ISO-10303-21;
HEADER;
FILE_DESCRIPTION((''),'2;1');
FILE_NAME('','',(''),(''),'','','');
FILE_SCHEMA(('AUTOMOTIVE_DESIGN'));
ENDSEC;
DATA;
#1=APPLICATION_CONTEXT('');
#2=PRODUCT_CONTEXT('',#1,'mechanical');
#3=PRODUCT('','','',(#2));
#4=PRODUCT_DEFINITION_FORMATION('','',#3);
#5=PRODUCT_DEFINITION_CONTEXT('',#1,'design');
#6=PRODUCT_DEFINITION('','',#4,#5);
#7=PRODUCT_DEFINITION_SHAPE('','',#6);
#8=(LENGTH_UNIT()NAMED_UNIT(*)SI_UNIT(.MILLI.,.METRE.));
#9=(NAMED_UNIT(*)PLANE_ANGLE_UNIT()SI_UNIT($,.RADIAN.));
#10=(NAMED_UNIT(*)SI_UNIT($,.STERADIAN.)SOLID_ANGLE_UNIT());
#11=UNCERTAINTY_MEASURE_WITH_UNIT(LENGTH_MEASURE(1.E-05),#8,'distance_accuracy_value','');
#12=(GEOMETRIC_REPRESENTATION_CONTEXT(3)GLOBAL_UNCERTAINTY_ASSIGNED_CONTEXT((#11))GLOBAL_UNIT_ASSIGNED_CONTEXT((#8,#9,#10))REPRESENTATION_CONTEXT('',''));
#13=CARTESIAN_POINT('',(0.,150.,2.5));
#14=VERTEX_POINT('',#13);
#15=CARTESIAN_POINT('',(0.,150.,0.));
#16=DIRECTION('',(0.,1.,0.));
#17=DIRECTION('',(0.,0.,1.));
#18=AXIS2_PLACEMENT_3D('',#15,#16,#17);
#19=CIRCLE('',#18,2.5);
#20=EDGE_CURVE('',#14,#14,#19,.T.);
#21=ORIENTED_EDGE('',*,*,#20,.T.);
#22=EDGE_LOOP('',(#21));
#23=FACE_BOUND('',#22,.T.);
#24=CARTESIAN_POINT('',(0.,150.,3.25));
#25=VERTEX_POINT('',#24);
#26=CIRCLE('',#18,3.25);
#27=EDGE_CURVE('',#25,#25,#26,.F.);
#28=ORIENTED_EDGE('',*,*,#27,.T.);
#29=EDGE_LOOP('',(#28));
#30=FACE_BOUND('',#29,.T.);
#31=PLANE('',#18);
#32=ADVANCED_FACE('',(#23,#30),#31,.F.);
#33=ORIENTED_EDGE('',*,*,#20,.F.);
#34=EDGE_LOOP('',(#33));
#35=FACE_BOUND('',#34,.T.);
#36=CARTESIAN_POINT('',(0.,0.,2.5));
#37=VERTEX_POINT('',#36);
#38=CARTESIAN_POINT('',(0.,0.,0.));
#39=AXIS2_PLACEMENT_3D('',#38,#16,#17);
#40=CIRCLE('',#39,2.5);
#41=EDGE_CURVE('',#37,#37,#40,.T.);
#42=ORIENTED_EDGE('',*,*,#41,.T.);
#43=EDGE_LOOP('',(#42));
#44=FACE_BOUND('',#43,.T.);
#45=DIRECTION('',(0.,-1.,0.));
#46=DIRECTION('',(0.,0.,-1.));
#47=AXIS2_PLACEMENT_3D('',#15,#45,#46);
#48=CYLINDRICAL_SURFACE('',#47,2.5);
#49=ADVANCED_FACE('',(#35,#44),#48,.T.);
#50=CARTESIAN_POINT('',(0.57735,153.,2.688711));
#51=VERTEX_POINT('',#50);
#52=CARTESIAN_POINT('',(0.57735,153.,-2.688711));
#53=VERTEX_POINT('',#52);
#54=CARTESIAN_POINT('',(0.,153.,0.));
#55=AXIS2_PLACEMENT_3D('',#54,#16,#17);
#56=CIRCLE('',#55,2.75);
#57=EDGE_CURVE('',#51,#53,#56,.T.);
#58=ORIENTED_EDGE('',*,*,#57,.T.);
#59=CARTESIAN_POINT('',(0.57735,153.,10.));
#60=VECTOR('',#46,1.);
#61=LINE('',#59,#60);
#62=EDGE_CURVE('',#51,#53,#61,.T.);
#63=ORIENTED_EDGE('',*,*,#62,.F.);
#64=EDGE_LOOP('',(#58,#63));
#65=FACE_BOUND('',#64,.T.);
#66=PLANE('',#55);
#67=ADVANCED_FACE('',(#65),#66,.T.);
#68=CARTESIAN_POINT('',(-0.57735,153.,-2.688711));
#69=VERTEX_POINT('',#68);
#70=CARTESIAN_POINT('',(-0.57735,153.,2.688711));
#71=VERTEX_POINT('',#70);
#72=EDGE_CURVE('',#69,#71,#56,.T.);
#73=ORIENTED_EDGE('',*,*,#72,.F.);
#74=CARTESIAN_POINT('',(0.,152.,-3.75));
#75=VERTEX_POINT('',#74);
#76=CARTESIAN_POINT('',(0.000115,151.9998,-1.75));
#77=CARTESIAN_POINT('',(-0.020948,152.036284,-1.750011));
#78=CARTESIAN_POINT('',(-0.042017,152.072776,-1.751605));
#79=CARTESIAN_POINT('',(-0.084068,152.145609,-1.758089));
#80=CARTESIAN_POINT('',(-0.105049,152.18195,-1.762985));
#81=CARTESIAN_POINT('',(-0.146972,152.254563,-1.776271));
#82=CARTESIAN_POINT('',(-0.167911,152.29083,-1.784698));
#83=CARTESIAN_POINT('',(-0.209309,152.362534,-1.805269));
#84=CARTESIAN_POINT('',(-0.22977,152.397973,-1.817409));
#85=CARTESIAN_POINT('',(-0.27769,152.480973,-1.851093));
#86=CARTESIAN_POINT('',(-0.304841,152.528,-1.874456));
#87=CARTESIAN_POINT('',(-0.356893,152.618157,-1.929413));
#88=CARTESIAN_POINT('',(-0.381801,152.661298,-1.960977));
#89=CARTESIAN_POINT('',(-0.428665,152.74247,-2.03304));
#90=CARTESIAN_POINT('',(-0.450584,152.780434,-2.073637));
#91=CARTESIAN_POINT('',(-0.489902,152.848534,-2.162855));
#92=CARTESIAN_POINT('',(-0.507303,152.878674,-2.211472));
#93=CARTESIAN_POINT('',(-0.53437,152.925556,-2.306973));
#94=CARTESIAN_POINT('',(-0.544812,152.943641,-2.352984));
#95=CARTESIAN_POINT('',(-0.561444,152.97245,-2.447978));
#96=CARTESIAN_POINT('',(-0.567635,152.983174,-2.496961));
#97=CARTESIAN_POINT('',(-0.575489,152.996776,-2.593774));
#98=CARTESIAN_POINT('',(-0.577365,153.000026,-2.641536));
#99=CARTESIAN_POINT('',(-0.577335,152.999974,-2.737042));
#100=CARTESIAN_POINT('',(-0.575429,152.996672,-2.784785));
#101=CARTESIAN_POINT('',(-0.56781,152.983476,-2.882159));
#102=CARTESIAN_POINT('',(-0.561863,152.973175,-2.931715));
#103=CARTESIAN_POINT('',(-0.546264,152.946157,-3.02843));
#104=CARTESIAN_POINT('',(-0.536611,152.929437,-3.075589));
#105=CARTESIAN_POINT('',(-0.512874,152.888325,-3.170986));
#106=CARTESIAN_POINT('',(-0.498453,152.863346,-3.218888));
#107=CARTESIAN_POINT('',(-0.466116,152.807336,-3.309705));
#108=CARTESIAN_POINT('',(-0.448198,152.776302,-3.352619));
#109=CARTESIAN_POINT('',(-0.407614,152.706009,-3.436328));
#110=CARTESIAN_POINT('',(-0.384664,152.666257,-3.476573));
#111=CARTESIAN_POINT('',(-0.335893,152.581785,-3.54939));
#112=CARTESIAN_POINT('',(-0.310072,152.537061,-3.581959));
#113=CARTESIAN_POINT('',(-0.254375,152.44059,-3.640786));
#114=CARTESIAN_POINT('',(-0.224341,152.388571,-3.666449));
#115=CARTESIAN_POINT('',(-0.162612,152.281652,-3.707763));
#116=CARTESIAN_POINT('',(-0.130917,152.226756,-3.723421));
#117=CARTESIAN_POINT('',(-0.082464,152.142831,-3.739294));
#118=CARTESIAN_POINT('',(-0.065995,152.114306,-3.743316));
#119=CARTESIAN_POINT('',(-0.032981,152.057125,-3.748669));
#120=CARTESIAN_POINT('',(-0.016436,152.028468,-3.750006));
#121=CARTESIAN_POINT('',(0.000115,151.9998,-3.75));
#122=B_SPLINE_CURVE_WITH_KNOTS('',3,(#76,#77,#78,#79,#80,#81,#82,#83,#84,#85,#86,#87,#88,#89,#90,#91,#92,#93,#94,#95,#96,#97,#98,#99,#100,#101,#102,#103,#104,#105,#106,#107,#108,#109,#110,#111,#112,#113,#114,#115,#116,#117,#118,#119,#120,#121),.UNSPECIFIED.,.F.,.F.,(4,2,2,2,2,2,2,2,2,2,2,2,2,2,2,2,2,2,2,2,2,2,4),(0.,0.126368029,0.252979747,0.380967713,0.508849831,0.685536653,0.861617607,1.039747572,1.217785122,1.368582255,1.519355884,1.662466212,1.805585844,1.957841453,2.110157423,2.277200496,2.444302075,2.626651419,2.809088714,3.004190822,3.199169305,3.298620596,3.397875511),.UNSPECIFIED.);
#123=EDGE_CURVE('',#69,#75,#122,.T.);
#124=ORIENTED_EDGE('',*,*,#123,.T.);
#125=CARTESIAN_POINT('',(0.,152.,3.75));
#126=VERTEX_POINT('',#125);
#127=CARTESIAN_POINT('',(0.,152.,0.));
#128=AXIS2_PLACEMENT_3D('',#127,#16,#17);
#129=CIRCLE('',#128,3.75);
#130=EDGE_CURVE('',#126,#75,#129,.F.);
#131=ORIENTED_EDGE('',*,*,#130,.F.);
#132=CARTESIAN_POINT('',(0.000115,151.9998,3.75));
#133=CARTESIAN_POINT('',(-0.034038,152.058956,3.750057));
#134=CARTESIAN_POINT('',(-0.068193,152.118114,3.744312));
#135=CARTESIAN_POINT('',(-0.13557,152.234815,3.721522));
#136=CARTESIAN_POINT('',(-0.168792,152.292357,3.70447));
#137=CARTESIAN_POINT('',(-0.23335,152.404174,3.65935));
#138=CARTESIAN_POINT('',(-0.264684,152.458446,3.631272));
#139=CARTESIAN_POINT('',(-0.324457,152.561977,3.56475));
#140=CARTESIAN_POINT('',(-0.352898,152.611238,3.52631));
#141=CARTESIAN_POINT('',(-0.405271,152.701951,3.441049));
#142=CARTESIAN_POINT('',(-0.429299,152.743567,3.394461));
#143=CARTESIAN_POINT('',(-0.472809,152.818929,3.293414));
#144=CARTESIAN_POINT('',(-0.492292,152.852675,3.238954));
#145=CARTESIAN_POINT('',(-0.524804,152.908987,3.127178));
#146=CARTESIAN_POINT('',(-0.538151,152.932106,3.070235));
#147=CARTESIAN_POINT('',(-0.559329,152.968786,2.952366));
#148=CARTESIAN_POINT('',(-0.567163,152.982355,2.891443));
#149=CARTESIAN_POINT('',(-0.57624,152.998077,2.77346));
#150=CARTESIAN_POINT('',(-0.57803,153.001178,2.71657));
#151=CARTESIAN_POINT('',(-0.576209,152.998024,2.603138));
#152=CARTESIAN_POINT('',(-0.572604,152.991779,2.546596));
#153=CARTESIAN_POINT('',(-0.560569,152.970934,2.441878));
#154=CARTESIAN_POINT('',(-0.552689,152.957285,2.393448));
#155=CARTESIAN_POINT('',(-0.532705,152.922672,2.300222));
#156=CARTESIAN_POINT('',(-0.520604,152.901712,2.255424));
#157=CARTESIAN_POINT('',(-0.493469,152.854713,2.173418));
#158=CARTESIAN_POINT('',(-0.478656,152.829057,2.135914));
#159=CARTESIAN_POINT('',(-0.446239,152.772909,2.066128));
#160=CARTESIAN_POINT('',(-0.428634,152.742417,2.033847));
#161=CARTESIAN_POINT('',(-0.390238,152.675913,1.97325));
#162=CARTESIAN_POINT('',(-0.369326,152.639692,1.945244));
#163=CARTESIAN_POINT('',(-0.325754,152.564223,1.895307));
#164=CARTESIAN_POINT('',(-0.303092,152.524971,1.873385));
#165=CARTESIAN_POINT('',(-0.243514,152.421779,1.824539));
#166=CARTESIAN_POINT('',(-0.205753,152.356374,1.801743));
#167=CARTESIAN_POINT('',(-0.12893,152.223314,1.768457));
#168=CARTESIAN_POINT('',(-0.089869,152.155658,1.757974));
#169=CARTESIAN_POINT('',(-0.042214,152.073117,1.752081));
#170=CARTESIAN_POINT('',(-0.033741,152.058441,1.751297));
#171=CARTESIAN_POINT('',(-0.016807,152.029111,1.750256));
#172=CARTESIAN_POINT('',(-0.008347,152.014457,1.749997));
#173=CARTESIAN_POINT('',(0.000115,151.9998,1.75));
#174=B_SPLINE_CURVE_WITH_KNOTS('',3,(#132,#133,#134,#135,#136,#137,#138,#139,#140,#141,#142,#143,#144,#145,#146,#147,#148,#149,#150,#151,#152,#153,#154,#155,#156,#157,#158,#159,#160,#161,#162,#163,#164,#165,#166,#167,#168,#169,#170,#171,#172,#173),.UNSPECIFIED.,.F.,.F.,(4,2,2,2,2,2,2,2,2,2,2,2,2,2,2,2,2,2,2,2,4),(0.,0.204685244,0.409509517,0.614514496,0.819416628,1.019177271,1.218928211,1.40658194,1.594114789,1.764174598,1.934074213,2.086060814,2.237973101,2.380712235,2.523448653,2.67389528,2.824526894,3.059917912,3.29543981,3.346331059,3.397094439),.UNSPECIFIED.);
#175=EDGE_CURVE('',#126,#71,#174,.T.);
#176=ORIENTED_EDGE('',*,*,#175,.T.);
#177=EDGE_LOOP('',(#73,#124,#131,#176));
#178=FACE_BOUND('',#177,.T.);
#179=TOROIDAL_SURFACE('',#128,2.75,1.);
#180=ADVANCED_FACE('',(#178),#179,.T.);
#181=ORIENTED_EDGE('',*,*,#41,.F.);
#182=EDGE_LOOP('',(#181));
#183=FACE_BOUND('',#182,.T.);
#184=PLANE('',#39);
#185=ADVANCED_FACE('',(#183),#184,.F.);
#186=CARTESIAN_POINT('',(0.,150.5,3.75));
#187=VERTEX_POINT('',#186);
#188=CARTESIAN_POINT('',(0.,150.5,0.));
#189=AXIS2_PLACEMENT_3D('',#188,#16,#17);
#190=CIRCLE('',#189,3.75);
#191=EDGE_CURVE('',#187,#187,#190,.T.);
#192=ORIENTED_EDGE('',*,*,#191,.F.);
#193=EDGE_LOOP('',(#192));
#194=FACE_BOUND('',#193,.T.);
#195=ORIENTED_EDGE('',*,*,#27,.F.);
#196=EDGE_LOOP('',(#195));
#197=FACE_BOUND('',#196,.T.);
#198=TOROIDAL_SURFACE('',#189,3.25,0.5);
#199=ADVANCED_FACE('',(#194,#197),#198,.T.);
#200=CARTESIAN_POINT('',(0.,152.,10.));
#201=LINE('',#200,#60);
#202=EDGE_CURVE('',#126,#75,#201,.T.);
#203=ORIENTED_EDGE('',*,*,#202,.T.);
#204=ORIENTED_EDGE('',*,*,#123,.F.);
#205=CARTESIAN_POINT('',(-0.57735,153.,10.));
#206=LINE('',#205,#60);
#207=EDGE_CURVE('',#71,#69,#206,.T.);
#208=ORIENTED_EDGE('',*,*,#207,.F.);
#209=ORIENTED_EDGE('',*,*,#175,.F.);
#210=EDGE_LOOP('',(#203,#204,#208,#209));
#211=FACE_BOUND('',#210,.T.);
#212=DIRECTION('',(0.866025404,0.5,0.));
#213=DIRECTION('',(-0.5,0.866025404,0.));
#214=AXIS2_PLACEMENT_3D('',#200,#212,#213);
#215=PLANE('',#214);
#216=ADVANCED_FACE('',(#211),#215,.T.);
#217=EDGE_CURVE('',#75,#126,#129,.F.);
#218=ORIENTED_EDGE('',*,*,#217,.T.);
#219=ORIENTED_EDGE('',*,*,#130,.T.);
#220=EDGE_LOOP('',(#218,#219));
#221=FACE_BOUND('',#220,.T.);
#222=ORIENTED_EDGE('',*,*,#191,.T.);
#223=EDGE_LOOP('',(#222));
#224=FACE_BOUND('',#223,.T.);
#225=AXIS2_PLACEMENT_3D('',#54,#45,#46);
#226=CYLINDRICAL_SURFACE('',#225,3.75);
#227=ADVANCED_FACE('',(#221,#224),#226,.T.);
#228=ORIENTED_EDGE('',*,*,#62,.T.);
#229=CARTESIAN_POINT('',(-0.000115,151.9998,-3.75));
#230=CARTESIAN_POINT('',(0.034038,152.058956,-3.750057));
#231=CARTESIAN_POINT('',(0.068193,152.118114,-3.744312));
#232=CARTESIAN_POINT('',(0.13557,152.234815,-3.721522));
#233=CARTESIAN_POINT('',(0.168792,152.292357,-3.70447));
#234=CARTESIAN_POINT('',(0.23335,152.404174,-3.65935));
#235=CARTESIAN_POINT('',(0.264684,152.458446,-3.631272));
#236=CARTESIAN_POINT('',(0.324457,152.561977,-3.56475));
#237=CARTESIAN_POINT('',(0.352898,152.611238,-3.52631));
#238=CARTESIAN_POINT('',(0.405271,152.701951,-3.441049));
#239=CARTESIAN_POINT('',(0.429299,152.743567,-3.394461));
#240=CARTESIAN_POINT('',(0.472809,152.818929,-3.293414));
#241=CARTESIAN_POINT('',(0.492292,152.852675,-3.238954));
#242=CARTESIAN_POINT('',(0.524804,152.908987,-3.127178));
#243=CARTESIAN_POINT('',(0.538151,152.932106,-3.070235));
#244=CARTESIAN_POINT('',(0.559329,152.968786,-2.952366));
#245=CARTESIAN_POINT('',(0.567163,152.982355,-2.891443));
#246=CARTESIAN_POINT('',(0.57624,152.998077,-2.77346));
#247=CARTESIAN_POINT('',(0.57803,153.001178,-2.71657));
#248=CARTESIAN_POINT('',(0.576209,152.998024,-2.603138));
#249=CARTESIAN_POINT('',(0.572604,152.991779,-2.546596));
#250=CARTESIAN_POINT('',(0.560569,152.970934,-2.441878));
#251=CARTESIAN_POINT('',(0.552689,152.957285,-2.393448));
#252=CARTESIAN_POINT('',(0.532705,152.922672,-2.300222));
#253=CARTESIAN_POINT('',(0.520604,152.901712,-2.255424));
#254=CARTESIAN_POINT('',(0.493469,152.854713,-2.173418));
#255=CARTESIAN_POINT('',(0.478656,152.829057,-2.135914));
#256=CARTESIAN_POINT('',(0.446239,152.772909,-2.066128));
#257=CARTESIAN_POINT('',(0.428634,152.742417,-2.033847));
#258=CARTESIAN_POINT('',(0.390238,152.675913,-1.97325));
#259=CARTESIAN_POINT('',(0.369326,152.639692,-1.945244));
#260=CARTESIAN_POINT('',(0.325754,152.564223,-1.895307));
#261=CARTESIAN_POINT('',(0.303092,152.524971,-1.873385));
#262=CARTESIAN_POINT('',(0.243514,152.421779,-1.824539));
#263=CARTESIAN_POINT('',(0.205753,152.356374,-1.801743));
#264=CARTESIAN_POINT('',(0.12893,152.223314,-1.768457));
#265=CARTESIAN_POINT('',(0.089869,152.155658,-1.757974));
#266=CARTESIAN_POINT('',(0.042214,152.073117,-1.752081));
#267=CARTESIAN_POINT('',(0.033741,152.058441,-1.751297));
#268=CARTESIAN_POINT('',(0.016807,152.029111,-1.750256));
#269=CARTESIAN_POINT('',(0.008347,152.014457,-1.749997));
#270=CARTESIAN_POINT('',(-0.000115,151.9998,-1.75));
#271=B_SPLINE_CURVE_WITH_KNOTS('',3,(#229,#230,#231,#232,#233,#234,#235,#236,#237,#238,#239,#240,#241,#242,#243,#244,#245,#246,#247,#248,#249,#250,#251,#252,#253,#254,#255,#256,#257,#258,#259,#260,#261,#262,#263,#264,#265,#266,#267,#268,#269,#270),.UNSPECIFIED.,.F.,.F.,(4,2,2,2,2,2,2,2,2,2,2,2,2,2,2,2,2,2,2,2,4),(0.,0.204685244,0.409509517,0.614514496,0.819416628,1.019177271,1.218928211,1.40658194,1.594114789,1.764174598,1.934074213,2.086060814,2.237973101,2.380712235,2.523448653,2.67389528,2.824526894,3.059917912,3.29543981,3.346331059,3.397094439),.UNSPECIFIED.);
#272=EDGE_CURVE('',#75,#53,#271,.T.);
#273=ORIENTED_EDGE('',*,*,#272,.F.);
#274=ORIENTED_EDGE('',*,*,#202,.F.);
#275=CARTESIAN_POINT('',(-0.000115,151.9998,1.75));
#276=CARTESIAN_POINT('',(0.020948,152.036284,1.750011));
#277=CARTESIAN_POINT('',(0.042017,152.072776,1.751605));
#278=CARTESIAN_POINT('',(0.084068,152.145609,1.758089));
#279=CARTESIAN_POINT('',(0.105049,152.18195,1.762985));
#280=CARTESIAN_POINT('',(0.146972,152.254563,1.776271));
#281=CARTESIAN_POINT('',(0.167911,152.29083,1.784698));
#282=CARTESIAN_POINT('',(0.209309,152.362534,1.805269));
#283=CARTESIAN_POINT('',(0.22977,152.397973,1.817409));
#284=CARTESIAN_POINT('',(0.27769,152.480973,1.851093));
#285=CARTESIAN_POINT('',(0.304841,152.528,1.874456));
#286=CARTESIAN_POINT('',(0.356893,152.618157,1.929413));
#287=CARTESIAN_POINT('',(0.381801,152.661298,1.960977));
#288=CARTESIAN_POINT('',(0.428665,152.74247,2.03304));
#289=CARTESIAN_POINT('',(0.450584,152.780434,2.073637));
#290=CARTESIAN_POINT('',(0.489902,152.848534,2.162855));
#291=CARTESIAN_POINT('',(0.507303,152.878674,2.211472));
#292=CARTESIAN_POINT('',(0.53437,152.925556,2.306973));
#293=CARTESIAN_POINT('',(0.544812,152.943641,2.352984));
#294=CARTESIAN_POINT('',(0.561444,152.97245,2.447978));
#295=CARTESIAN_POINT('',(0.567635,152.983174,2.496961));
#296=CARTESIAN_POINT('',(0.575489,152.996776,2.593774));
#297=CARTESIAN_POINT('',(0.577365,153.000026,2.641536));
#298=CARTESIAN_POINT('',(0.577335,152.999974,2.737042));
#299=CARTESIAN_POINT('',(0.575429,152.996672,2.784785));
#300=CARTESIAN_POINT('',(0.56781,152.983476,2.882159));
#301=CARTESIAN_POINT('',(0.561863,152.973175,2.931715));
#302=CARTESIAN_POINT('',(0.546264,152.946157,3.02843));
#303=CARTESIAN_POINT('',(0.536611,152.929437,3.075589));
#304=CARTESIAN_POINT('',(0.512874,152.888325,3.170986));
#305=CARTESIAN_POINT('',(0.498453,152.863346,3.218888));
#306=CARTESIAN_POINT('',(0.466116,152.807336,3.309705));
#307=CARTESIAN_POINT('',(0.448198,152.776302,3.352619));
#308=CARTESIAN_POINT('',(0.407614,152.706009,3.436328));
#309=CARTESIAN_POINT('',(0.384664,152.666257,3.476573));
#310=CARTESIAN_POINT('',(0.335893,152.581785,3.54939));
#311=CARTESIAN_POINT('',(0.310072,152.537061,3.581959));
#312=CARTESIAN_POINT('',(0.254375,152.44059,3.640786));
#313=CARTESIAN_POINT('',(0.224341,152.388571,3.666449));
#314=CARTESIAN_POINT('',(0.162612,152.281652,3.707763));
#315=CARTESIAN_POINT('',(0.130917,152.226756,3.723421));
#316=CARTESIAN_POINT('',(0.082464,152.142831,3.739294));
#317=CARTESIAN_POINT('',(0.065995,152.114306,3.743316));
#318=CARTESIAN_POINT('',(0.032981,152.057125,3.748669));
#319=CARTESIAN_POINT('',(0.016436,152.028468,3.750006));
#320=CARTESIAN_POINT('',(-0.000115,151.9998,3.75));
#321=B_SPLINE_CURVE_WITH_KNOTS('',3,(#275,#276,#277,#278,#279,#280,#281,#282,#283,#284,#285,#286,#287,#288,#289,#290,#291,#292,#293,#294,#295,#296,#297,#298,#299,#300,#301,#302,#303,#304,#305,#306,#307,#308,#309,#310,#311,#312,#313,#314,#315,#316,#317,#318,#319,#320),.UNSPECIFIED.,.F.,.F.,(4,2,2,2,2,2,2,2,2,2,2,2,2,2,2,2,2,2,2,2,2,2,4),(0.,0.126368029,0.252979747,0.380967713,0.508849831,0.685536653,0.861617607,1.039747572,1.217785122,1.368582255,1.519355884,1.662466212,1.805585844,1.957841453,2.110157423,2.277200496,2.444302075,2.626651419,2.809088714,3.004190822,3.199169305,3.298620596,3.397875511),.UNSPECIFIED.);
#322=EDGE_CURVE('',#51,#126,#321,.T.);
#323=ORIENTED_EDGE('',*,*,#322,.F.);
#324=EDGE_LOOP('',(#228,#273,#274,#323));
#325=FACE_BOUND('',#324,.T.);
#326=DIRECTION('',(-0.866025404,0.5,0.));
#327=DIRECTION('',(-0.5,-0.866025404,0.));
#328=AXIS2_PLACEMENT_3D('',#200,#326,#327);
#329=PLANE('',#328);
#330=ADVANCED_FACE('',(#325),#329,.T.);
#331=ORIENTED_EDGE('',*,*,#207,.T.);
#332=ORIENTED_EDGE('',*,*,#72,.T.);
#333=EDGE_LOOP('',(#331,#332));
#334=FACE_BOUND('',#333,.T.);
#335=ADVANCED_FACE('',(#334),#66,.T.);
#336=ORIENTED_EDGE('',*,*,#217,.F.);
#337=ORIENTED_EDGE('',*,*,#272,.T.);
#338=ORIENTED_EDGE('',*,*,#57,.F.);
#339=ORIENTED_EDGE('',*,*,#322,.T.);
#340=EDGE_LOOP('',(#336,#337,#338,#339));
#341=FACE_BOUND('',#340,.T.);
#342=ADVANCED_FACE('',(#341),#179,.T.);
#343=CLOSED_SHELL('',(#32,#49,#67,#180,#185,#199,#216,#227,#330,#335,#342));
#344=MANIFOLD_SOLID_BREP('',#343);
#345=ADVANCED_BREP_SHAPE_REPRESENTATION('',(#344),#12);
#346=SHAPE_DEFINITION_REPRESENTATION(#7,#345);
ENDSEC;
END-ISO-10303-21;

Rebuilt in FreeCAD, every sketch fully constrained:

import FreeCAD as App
import Part
import Sketcher

V = App.Vector
Q = App.Units.Quantity


def edges_at(feature, points):
    """Names of the edges that pass closest to the given points."""
    edges = feature.Shape.Edges
    near = lambda p: min(range(len(edges)), key=lambda i: edges[i].distToShape(Part.Vertex(*p))[0])
    return sorted({f"Edge{near(p) + 1}" for p in points})

doc = App.newDocument("Part")
params = doc.addObject("Spreadsheet::Sheet", "Params")
for row, (alias, value) in enumerate([
    ("sketch1_diameter", "5 mm"),
    ("pad1_length", "150 mm"),
    ("sketch2_diameter", "7.5 mm"),
    ("pad2_length", "3 mm"),
    ("fillet_radius", "1 mm"),
    ("fillet2_radius", "0.5 mm"),
], start=1):
    params.set(f"A{row}", alias)
    params.set(f"B{row}", "=" + value)
    params.setAlias(f"B{row}", alias)

body = doc.addObject("PartDesign::Body", "Body")

sketch1 = body.newObject("Sketcher::SketchObject", "Sketch")
sketch1.AttachmentSupport = (doc.getObject("XZ_Plane"), [""])
sketch1.MapMode = "FlatFace"
sketch1.addGeometry(Part.Circle(V(0, 0, 0), V(0, 0, 1), 2.5), False)
sketch1.addConstraint([
    Sketcher.Constraint("Coincident", 0, 3, -1, 1),
    Sketcher.Constraint("Diameter", 0, Q("5 mm")),
])
sketch1.setExpression("Constraints[1]", "Params.sketch1_diameter")
pad1 = body.newObject("PartDesign::Pad", "Pad")
pad1.Profile = sketch1
pad1.setExpression("Length", "Params.pad1_length")
pad1.Reversed = True

sketch2 = body.newObject("Sketcher::SketchObject", "Sketch001")
sketch2.AttachmentSupport = (doc.getObject("XZ_Plane"), [""])
sketch2.MapMode = "FlatFace"
sketch2.AttachmentOffset = App.Placement(V(0, 0, -150), App.Rotation())
sketch2.addGeometry(Part.Circle(V(0, 0, 0), V(0, 0, 1), 3.75), False)
sketch2.addConstraint([
    Sketcher.Constraint("Coincident", 0, 3, -1, 1),
    Sketcher.Constraint("Diameter", 0, Q("7.5 mm")),
])
sketch2.setExpression("Constraints[1]", "Params.sketch2_diameter")
pad2 = body.newObject("PartDesign::Pad", "Pad001")
pad2.Profile = sketch2
pad2.setExpression("Length", "Params.pad2_length")
pad2.Reversed = True
doc.recompute()

fillet = body.newObject("PartDesign::Fillet", "Fillet")
fillet.Base = (pad2, edges_at(pad2, [(-3.75, 153, 0)]))
fillet.setExpression("Radius", "Params.fillet_radius")

sketch3 = body.newObject("Sketcher::SketchObject", "Sketch002")
sketch3.AttachmentSupport = (doc.getObject("XY_Plane"), [""])
sketch3.MapMode = "FlatFace"
sketch3.addGeometry([
    Part.LineSegment(V(-0.57735, 153, 0), V(0, 152, 0)),
    Part.LineSegment(V(0, 152, 0), V(0.57735, 153, 0)),
    Part.LineSegment(V(0.57735, 153, 0), V(-0.57735, 153, 0)),
], False)
sketch3.addConstraint([
    Sketcher.Constraint("Coincident", 0, 2, 1, 1),
    Sketcher.Constraint("Coincident", 1, 2, 2, 1),
    Sketcher.Constraint("Coincident", 2, 2, 0, 1),
    Sketcher.Constraint("Horizontal", 2),
    Sketcher.Constraint("PointOnObject", 0, 2, -2),
    Sketcher.Constraint("Equal", 0, 1),
    Sketcher.Constraint("Angle", 0, Q("-60 deg")),
    Sketcher.Constraint("DistanceY", -1, 1, 0, 2, Q("152 mm")),
    Sketcher.Constraint("DistanceY", -1, 1, 1, 2, Q("153 mm")),
])
pocket1 = body.newObject("PartDesign::Pocket", "Pocket")
pocket1.Profile = sketch3
pocket1.Type = "ThroughAll"
pocket1.Midplane = True
doc.recompute()

fillet2 = body.newObject("PartDesign::Fillet", "Fillet001")
fillet2.Base = (pocket1, edges_at(pocket1, [(-3.75, 150, 0)]))
fillet2.setExpression("Radius", "Params.fillet2_radius")

doc.recompute()
